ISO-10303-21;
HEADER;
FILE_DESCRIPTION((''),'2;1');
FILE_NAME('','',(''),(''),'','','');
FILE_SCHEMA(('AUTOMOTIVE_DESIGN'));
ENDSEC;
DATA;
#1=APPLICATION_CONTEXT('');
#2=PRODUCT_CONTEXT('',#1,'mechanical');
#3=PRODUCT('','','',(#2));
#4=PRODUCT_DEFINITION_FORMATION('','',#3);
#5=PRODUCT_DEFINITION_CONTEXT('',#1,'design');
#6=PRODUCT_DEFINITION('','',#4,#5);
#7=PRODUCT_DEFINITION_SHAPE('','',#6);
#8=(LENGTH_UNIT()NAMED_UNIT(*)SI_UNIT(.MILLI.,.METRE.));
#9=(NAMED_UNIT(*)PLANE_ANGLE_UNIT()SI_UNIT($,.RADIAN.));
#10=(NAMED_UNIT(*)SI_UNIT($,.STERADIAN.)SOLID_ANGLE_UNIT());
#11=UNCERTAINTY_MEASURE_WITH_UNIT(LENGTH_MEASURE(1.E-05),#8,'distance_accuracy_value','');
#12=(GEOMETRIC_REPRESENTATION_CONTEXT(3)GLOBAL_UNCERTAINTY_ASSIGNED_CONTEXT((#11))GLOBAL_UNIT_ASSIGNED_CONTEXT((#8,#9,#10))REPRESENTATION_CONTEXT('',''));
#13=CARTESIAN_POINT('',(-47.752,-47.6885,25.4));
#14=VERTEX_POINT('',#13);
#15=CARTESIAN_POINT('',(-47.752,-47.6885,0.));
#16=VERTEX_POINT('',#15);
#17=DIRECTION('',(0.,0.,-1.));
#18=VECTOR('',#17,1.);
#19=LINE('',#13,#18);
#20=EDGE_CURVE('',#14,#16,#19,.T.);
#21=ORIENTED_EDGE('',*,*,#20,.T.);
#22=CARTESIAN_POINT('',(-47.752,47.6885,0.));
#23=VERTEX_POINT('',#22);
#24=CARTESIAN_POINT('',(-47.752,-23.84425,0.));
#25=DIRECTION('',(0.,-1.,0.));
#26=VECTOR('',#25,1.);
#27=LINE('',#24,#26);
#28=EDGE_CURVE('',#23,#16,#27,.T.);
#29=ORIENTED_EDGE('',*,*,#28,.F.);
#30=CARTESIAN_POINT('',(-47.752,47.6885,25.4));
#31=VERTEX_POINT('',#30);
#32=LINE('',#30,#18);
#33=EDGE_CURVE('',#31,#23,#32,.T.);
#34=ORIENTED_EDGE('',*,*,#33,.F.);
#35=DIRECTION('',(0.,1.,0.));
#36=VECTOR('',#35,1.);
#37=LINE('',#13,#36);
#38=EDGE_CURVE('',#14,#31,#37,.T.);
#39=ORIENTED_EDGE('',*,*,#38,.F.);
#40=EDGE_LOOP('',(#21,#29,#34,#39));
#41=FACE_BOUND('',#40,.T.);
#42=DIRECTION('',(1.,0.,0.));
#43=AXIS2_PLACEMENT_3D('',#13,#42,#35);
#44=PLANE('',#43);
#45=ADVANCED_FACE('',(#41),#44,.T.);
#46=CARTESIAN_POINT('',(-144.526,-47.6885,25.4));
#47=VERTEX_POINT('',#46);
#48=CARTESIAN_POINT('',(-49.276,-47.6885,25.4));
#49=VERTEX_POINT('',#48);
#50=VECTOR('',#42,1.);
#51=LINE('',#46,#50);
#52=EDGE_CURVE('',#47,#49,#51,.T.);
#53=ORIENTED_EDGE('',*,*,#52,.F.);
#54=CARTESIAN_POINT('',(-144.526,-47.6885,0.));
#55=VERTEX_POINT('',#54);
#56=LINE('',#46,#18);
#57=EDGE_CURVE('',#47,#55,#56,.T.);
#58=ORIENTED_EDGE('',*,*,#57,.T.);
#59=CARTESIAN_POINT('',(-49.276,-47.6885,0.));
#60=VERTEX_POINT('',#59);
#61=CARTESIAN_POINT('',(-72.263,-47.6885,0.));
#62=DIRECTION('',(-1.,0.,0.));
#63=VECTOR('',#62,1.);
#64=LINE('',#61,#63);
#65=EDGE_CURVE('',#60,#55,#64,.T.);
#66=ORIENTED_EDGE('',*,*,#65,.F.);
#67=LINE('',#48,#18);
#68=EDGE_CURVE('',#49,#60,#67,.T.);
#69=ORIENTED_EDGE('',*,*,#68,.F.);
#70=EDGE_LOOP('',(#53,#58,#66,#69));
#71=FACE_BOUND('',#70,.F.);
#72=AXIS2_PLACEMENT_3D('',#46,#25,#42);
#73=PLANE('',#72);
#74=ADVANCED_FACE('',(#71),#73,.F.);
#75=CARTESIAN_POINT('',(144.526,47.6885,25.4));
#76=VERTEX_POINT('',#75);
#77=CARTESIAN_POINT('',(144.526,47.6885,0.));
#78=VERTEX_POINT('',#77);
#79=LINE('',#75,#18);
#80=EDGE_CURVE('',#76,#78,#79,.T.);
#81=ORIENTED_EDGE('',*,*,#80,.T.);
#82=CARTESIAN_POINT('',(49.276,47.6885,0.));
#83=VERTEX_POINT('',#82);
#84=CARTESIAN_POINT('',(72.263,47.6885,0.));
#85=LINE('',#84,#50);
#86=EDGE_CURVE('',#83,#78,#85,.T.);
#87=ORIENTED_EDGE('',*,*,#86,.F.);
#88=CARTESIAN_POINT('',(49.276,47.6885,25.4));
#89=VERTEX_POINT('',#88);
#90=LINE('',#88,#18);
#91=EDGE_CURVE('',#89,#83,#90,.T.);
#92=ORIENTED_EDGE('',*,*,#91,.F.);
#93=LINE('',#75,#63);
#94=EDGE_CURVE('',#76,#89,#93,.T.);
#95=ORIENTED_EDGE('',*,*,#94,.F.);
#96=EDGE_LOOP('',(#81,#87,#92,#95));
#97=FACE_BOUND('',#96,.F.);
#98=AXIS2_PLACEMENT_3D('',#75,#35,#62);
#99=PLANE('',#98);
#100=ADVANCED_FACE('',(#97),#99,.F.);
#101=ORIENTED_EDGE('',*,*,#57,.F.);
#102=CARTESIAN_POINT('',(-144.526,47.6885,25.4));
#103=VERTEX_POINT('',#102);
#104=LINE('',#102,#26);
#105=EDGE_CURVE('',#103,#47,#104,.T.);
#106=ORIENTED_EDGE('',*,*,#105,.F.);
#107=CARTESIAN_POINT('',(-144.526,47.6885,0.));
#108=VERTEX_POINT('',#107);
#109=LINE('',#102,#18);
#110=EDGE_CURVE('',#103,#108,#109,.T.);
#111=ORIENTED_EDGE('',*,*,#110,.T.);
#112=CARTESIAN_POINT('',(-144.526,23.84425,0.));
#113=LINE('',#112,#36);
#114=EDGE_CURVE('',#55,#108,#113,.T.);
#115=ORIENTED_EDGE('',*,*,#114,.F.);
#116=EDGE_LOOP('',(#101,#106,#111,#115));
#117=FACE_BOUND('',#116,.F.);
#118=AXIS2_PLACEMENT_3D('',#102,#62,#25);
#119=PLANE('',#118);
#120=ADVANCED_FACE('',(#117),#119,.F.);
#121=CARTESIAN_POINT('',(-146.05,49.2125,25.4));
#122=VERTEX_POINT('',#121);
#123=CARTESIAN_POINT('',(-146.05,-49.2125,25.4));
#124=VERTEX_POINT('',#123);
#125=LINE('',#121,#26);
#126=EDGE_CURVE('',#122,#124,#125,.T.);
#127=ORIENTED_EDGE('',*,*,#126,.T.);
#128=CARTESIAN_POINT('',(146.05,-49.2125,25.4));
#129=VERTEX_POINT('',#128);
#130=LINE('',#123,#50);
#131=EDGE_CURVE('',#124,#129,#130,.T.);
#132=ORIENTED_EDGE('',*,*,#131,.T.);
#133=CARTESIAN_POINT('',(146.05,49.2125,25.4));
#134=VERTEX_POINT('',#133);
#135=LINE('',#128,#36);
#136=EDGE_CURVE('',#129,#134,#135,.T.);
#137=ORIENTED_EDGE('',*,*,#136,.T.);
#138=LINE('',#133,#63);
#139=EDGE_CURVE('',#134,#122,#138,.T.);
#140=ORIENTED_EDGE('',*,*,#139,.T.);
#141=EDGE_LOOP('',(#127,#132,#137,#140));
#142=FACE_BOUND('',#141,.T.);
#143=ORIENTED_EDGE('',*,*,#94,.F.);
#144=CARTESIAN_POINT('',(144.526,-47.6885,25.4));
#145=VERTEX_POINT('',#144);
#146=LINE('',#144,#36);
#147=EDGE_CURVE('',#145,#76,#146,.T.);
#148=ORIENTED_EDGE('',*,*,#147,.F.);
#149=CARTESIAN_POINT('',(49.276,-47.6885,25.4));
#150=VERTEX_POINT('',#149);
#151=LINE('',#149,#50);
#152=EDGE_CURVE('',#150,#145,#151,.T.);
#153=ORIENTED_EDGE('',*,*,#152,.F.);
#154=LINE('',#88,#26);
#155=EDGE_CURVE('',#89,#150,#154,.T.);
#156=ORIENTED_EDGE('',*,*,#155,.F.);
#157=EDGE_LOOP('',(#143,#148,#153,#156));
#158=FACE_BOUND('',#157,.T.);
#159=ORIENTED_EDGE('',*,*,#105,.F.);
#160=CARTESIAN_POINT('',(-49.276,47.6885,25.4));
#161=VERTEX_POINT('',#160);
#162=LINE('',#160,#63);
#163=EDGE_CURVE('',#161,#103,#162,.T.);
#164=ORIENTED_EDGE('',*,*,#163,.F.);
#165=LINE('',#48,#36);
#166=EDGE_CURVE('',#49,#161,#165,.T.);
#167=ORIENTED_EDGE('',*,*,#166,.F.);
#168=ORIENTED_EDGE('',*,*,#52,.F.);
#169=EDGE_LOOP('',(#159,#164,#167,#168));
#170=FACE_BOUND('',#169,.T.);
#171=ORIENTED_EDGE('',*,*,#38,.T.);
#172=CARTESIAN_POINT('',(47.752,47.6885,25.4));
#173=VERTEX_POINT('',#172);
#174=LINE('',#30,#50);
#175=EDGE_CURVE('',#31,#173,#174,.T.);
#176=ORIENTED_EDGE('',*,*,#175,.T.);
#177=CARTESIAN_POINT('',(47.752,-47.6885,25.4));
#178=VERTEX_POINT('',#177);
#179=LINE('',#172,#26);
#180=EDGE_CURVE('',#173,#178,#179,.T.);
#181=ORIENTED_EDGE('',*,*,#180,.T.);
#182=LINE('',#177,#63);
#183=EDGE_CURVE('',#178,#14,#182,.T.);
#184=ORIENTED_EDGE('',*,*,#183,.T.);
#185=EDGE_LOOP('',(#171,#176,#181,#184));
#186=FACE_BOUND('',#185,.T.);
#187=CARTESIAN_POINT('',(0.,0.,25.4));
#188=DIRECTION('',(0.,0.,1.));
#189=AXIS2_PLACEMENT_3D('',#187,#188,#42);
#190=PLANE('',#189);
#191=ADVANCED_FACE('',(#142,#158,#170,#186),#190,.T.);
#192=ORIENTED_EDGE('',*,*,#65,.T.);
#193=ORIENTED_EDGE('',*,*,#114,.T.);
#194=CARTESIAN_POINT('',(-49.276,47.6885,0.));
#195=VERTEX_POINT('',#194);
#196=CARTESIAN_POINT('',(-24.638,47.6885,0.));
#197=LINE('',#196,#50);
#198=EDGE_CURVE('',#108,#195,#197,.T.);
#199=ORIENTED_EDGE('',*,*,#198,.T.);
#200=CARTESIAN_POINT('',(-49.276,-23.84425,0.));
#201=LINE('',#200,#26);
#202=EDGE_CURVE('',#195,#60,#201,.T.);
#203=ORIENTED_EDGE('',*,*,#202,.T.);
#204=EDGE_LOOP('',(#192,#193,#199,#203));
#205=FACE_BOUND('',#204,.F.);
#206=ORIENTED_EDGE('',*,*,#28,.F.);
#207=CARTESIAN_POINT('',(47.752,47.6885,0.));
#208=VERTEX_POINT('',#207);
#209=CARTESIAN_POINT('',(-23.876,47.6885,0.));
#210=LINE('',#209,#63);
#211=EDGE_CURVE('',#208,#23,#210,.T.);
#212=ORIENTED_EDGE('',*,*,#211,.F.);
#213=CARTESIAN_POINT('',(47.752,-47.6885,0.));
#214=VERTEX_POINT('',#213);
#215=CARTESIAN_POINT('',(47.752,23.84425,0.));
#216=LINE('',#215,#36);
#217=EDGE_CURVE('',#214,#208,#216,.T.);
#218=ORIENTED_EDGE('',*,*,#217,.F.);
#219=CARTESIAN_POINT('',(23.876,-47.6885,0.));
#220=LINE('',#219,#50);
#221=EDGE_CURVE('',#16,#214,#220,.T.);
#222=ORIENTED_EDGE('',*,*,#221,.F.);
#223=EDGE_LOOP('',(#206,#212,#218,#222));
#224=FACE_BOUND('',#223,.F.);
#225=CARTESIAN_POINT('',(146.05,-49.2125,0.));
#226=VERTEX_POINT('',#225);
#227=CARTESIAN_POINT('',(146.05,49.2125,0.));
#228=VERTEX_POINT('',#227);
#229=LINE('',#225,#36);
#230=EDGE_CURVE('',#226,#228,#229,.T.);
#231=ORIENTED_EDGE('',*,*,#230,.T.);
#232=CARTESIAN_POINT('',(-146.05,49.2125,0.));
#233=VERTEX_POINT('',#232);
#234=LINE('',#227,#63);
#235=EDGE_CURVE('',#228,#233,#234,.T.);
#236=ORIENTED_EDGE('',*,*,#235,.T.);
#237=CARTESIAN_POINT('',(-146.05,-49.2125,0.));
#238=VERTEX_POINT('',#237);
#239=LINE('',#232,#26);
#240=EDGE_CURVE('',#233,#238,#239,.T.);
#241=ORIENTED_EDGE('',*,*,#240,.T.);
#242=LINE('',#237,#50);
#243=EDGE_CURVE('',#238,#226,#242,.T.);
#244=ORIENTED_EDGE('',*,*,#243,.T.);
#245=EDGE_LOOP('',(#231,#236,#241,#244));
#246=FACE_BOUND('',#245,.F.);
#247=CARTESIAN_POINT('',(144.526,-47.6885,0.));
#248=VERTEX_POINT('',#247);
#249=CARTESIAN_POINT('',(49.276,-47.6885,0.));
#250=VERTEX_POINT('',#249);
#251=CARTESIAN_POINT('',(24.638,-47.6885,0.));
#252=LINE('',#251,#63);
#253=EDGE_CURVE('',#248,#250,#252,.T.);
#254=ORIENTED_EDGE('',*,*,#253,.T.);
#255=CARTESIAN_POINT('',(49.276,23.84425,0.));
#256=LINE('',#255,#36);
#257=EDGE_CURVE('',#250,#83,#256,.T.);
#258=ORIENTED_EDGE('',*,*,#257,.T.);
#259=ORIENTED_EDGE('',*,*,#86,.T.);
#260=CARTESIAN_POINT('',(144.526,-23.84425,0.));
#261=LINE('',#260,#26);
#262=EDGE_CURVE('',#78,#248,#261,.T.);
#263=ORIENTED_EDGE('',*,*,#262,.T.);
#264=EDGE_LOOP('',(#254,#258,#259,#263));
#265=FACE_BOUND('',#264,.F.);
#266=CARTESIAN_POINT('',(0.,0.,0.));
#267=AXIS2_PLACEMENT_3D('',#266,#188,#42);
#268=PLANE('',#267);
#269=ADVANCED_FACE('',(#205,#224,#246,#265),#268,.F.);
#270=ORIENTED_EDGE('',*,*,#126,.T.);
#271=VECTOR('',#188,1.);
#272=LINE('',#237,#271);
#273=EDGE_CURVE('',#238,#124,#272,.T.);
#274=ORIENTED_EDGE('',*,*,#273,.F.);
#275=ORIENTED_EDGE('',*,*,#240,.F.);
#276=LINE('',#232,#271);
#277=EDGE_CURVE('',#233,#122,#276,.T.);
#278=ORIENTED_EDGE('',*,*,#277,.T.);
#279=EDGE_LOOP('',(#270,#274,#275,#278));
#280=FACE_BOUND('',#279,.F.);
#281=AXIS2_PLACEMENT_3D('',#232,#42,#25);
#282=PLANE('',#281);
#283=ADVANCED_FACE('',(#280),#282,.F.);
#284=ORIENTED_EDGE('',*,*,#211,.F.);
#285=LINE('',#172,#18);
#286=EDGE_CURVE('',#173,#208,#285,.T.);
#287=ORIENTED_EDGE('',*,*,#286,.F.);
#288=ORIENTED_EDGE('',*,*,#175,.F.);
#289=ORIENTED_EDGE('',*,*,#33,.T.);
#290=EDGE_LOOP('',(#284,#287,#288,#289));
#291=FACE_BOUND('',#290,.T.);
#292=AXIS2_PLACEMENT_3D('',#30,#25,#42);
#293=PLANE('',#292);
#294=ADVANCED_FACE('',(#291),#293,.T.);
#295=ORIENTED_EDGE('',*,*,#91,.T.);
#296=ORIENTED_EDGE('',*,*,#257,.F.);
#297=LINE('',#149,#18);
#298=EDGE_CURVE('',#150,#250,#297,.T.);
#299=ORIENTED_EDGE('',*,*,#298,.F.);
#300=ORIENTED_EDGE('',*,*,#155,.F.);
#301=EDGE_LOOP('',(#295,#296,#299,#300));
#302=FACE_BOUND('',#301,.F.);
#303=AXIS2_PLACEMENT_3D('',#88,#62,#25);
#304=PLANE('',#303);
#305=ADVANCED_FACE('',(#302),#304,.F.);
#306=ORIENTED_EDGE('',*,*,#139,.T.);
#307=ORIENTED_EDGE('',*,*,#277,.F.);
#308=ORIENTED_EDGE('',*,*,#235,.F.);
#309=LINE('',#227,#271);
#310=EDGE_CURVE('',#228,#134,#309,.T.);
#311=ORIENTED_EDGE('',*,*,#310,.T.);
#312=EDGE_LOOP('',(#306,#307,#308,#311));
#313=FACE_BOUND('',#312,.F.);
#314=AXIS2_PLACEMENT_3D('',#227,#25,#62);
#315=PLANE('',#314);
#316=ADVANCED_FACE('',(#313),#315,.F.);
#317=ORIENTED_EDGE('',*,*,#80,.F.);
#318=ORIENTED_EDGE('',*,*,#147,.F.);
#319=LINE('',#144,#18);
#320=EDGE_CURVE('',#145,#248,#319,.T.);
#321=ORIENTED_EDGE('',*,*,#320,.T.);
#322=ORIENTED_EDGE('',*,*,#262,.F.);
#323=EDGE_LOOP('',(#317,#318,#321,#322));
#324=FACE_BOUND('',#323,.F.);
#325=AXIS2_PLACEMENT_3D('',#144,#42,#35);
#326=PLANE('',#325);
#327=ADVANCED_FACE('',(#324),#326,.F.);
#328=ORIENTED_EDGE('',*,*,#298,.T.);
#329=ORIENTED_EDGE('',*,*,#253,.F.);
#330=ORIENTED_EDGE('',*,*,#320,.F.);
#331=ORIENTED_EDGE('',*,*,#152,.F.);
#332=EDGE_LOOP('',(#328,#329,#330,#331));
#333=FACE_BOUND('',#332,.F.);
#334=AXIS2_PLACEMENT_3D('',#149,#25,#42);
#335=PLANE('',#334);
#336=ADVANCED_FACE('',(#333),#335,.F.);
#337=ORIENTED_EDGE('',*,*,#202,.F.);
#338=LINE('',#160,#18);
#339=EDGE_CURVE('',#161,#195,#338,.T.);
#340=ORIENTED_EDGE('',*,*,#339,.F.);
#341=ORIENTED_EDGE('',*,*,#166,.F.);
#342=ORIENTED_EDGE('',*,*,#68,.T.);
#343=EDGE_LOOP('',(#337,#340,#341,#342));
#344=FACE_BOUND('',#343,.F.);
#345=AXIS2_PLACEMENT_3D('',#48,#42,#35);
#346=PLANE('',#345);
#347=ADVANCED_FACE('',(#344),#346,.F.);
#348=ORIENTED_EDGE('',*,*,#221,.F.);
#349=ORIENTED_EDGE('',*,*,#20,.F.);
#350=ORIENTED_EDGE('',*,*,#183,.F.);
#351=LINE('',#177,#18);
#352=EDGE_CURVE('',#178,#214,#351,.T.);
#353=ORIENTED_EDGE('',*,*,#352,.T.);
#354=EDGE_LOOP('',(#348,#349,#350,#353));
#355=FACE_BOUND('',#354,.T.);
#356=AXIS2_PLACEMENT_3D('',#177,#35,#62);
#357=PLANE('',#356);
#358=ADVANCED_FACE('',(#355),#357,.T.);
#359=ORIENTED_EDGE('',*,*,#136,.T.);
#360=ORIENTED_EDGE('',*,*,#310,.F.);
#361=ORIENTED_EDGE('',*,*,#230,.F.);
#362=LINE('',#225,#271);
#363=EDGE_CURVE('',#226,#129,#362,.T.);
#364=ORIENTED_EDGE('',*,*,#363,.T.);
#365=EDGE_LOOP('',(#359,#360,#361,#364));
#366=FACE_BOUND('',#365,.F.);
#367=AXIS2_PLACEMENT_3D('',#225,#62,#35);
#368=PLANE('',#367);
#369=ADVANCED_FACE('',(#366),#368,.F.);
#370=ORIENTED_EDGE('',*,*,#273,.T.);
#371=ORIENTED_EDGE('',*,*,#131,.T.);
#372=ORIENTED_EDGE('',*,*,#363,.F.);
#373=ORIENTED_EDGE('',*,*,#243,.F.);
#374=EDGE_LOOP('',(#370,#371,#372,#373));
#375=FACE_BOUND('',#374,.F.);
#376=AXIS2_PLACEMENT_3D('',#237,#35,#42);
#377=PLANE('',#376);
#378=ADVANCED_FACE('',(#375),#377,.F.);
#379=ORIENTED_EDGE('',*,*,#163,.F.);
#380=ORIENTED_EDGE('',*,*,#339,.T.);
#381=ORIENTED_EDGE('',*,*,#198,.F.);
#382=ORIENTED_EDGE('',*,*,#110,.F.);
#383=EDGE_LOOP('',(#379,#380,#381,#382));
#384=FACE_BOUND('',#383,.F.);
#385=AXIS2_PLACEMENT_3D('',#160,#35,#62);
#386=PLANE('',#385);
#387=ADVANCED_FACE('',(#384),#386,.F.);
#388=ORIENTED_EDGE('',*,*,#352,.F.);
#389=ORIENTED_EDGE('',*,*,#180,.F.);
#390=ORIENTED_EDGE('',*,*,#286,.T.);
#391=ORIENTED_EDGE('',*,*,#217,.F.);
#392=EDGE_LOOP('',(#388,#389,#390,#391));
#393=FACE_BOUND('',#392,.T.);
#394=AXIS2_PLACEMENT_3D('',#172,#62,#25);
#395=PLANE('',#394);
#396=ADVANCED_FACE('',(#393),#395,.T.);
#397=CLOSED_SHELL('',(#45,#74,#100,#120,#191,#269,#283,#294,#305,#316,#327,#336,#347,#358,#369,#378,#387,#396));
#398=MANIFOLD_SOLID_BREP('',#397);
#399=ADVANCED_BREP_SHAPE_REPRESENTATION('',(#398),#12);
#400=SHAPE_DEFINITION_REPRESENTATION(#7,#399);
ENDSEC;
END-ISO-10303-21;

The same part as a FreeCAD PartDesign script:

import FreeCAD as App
import Part
import Sketcher

V = App.Vector
Q = App.Units.Quantity

doc = App.newDocument("Part")
body = doc.addObject("PartDesign::Body", "Body")

# Sketch on XY plane
sketch1 = body.newObject("Sketcher::SketchObject", "Sketch")
sketch1.AttachmentSupport = (doc.getObject("XY_Plane"), [""])
sketch1.MapMode = "FlatFace"
sketch1.addGeometry(Part.LineSegment(V(-146, 49, 0), V(-146, -49, 0)), False)
sketch1.addGeometry(Part.LineSegment(V(-146, -49, 0), V(146, -49, 0)), False)
sketch1.addGeometry(Part.LineSegment(V(146, -49, 0), V(146, 49, 0)), False)
sketch1.addGeometry(Part.LineSegment(V(146, 49, 0), V(-146, 49, 0)), False)
sketch1.addConstraint(Sketcher.Constraint("Coincident", 0, 2, 1, 1))
sketch1.addConstraint(Sketcher.Constraint("Coincident", 1, 2, 2, 1))
sketch1.addConstraint(Sketcher.Constraint("Coincident", 2, 2, 3, 1))
sketch1.addConstraint(Sketcher.Constraint("Coincident", 3, 2, 0, 1))
sketch1.addConstraint(Sketcher.Constraint("Vertical", 0))
sketch1.addConstraint(Sketcher.Constraint("Horizontal", 1))
sketch1.addConstraint(Sketcher.Constraint("Vertical", 2))
sketch1.addConstraint(Sketcher.Constraint("Horizontal", 3))
sketch1.addConstraint(Sketcher.Constraint("Symmetric", 0, 2, 2, 2, -1, 1))
sketch1.addConstraint(Sketcher.Constraint("DistanceX", 0, 2, -1, 1, Q("5.75 in")))
sketch1.addConstraint(Sketcher.Constraint("DistanceY", 0, 2, 0, 1, Q("3.875 in")))
pad1 = body.newObject("PartDesign::Pad", "Pad")
pad1.Profile = sketch1
pad1.Length = Q("1 in")

# Sketch on XY plane
sketch2 = body.newObject("Sketcher::SketchObject", "Sketch001")
sketch2.AttachmentSupport = (doc.getObject("XY_Plane"), [""])
sketch2.MapMode = "FlatFace"
sketch2.AttachmentOffset = App.Placement(V(0, 0, 1 * 25.4), App.Rotation())
sketch2.addGeometry(Part.LineSegment(V(145, 48, 0), V(49, 48, 0)), False)
sketch2.addGeometry(Part.LineSegment(V(49, 48, 0), V(49, -48, 0)), False)
sketch2.addGeometry(Part.LineSegment(V(49, -48, 0), V(145, -48, 0)), False)
sketch2.addGeometry(Part.LineSegment(V(145, -48, 0), V(145, 48, 0)), False)
sketch2.addGeometry(Part.LineSegment(V(48, 48, 0), V(-48, 48, 0)), False)
sketch2.addGeometry(Part.LineSegment(V(-48, 48, 0), V(-48, -48, 0)), False)
sketch2.addGeometry(Part.LineSegment(V(-48, -48, 0), V(48, -48, 0)), False)
sketch2.addGeometry(Part.LineSegment(V(48, -48, 0), V(48, 48, 0)), False)
sketch2.addGeometry(Part.LineSegment(V(-145, 48, 0), V(-145, -48, 0)), False)
sketch2.addGeometry(Part.LineSegment(V(-145, -48, 0), V(-49, -48, 0)), False)
sketch2.addGeometry(Part.LineSegment(V(-49, -48, 0), V(-49, 48, 0)), False)
sketch2.addGeometry(Part.LineSegment(V(-49, 48, 0), V(-145, 48, 0)), False)
sketch2.addConstraint(Sketcher.Constraint("Coincident", 0, 2, 1, 1))
sketch2.addConstraint(Sketcher.Constraint("Coincident", 1, 2, 2, 1))
sketch2.addConstraint(Sketcher.Constraint("Coincident", 2, 2, 3, 1))
sketch2.addConstraint(Sketcher.Constraint("Coincident", 3, 2, 0, 1))
sketch2.addConstraint(Sketcher.Constraint("Coincident", 4, 2, 5, 1))
sketch2.addConstraint(Sketcher.Constraint("Coincident", 5, 2, 6, 1))
sketch2.addConstraint(Sketcher.Constraint("Coincident", 6, 2, 7, 1))
sketch2.addConstraint(Sketcher.Constraint("Coincident", 7, 2, 4, 1))
sketch2.addConstraint(Sketcher.Constraint("Coincident", 8, 2, 9, 1))
sketch2.addConstraint(Sketcher.Constraint("Coincident", 9, 2, 10, 1))
sketch2.addConstraint(Sketcher.Constraint("Coincident", 10, 2, 11, 1))
sketch2.addConstraint(Sketcher.Constraint("Coincident", 11, 2, 8, 1))
sketch2.addConstraint(Sketcher.Constraint("Horizontal", 0))
sketch2.addConstraint(Sketcher.Constraint("Vertical", 1))
sketch2.addConstraint(Sketcher.Constraint("Horizontal", 2))
sketch2.addConstraint(Sketcher.Constraint("Vertical", 3))
sketch2.addConstraint(Sketcher.Constraint("Horizontal", 4))
sketch2.addConstraint(Sketcher.Constraint("Vertical", 5))
sketch2.addConstraint(Sketcher.Constraint("Horizontal", 6))
sketch2.addConstraint(Sketcher.Constraint("Vertical", 7))
sketch2.addConstraint(Sketcher.Constraint("Vertical", 8))
sketch2.addConstraint(Sketcher.Constraint("Horizontal", 9))
sketch2.addConstraint(Sketcher.Constraint("Vertical", 10))
sketch2.addConstraint(Sketcher.Constraint("Horizontal", 11))
sketch2.addConstraint(Sketcher.Constraint("Symmetric", 4, 2, 6, 2, -1, 1))
sketch2.addConstraint(Sketcher.Constraint("Symmetric", 3, 2, 8, 2, -1, 1))
sketch2.addConstraint(Sketcher.Constraint("Symmetric", 1, 2, 10, 2, -1, 1))
sketch2.addConstraint(Sketcher.Constraint("Horizontal", 3, 2, 4, 2))
sketch2.addConstraint(Sketcher.Constraint("Horizontal", 2, 2, 5, 2))
sketch2.addConstraint(Sketcher.Constraint("DistanceX", -1, 1, 0, 2, Q("1.94 in")))
sketch2.addConstraint(Sketcher.Constraint("DistanceX", -1, 1, 2, 2, Q("5.69 in")))
sketch2.addConstraint(Sketcher.Constraint("DistanceX", 4, 2, 4, 1, Q("3.76 in")))
sketch2.addConstraint(Sketcher.Constraint("DistanceY", 1, 2, 1, 1, Q("3.755 in")))
pocket1 = body.newObject("PartDesign::Pocket", "Pocket")
pocket1.Profile = sketch2
pocket1.Type = "UpToFirst"

doc.recompute()
